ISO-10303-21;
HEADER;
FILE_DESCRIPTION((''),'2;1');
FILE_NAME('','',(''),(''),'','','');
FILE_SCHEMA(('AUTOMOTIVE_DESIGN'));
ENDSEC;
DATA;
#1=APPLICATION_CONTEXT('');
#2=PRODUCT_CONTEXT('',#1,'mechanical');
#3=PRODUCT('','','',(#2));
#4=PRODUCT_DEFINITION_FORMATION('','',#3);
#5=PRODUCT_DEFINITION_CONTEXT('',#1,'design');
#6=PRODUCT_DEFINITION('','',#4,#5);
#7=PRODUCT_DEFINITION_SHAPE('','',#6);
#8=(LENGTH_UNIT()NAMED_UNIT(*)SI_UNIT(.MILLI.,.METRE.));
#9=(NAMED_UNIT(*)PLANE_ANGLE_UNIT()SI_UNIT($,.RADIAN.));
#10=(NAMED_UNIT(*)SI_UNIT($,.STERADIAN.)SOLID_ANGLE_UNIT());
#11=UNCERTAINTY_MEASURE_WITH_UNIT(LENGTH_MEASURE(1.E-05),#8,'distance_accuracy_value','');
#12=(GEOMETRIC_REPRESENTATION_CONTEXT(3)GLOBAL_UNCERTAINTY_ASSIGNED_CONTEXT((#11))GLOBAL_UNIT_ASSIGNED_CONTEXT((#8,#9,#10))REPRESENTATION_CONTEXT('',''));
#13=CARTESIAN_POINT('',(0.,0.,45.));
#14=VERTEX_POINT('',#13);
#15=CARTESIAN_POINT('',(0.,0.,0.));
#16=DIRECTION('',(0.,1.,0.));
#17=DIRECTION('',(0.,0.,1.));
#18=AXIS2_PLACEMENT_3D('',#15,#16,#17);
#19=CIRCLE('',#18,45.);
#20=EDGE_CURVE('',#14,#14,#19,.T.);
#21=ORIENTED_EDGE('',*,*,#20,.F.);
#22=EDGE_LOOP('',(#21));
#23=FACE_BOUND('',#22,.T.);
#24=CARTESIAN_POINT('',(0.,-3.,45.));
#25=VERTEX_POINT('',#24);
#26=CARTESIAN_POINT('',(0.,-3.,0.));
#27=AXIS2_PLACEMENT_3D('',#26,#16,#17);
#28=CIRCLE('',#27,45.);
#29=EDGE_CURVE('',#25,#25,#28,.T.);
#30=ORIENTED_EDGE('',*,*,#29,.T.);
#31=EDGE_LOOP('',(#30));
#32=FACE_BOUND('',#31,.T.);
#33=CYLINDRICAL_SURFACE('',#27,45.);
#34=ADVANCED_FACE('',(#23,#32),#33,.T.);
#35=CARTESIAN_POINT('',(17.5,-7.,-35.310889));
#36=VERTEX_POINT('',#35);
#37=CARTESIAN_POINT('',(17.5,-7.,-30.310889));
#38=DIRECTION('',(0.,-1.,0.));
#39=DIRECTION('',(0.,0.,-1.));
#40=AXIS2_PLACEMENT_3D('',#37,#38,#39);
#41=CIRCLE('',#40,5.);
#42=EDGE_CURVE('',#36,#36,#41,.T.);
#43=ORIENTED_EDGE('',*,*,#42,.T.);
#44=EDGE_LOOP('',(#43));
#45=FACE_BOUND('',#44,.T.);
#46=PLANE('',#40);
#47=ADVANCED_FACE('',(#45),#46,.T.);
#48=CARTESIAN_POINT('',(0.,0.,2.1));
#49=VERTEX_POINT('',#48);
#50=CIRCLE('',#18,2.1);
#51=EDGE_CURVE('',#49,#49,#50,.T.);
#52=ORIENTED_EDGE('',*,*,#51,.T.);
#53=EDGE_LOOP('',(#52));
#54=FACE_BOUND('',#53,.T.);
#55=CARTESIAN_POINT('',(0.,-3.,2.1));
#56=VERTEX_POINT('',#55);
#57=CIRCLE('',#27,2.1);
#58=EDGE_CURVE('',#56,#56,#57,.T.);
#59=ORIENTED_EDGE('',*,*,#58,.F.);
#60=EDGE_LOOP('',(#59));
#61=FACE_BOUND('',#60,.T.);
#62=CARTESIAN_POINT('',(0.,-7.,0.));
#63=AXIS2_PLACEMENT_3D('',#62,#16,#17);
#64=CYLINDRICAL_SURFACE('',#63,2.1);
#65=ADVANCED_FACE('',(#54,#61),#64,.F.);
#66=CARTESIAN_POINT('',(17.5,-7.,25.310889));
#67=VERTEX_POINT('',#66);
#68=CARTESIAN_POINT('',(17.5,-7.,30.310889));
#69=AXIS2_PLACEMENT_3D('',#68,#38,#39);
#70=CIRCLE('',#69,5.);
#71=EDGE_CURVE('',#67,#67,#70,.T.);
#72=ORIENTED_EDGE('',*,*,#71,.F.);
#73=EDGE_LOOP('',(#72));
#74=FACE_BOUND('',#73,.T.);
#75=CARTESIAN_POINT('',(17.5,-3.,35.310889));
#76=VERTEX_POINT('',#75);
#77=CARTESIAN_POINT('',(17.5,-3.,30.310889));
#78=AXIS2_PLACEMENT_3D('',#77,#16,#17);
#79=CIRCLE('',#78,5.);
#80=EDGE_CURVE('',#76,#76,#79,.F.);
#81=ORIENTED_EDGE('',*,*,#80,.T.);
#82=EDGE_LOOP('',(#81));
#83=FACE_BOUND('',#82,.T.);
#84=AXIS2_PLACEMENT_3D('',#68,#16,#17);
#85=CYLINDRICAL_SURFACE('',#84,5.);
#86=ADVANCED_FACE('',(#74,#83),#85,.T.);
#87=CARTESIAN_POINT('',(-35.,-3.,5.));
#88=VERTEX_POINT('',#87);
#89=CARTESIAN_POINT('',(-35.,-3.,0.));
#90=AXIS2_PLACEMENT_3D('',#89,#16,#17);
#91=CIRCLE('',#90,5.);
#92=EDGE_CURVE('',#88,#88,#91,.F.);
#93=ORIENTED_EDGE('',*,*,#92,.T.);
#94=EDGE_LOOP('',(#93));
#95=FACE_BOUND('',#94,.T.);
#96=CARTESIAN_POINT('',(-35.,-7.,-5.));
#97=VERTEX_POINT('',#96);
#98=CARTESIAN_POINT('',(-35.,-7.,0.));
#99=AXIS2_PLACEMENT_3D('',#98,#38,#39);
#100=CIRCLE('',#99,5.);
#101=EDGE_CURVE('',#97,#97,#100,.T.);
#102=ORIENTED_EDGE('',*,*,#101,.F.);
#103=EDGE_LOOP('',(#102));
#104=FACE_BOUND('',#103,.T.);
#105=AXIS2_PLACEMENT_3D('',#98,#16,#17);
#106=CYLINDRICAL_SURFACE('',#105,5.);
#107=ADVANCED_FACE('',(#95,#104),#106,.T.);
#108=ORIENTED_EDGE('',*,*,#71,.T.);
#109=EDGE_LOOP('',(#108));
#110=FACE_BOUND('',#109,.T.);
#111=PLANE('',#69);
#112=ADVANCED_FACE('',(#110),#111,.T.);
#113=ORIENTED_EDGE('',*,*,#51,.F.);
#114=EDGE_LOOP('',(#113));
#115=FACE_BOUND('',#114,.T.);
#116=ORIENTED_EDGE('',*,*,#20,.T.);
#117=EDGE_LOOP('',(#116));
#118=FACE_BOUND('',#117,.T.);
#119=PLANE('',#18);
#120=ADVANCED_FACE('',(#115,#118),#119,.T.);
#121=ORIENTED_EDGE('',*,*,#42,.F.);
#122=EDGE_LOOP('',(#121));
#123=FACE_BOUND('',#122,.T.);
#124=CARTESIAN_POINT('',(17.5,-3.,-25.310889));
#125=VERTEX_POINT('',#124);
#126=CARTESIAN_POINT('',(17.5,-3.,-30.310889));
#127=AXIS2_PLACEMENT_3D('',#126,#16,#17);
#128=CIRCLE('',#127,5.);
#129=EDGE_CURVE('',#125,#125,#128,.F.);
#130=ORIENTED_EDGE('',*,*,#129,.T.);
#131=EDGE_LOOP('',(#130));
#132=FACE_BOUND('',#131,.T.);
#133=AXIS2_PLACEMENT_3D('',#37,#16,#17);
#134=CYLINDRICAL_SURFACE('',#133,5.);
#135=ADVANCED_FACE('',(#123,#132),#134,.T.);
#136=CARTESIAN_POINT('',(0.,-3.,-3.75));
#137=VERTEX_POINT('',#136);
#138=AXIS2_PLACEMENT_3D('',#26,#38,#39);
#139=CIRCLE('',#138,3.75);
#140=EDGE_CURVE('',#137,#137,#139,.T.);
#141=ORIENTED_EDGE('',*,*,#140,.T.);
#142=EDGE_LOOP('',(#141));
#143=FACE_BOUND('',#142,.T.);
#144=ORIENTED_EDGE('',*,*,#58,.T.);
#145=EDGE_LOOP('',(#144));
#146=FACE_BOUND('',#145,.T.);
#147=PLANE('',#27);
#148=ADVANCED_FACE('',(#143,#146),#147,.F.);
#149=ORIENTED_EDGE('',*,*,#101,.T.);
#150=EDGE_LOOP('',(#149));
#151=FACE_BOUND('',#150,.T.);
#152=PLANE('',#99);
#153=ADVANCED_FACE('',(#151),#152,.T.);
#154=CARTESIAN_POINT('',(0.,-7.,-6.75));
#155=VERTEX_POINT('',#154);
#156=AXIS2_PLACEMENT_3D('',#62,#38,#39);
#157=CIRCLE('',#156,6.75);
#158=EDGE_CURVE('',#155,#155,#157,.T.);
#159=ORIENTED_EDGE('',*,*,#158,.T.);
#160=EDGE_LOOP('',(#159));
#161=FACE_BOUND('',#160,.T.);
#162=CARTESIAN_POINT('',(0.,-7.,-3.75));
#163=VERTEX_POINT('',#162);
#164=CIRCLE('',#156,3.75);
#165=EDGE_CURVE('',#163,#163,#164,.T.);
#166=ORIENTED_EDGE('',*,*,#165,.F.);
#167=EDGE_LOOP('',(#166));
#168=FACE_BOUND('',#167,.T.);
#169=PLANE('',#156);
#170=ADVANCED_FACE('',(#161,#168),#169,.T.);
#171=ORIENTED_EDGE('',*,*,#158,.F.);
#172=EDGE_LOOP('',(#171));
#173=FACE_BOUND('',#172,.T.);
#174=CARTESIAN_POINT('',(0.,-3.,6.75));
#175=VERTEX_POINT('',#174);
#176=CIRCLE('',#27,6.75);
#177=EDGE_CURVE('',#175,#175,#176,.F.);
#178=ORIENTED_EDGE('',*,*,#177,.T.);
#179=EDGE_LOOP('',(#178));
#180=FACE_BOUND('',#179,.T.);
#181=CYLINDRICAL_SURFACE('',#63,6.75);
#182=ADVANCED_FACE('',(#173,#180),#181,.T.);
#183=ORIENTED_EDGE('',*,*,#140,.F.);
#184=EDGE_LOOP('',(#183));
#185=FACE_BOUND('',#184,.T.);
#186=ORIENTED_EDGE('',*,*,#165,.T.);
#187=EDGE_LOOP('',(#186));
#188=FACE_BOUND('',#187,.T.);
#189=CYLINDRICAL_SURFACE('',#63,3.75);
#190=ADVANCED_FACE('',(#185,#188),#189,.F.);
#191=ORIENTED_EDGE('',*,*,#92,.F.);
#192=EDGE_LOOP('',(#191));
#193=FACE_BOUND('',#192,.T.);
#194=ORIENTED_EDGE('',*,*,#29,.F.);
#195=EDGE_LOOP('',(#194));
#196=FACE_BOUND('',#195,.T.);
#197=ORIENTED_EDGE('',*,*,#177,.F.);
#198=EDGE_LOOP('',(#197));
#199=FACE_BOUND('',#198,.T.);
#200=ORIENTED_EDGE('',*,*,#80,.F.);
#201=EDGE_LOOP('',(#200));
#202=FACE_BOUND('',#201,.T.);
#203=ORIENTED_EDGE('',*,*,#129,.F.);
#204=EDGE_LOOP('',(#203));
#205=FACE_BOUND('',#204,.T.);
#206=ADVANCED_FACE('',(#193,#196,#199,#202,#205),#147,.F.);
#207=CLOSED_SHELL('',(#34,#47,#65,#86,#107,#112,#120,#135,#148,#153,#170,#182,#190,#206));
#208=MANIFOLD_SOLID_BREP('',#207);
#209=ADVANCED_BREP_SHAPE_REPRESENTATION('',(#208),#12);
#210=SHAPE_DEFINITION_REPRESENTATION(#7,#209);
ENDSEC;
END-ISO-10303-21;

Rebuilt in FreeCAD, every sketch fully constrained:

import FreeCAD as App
import Part
import Sketcher

doc = App.newDocument("Part")
body = doc.addObject("PartDesign::Body", "Body")

sketch1 = body.newObject("Sketcher::SketchObject", "Sketch")
sketch1.AttachmentSupport = (doc.getObject("XZ_Plane"), [""])
sketch1.MapMode = "FlatFace"
sketch1.addGeometry(Part.Circle(App.Vector(0, 0, 0), App.Vector(0, 0, 1), 45), False)
sketch1.addConstraint([
    Sketcher.Constraint("Coincident", 0, 3, -1, 1),
    Sketcher.Constraint("Diameter", 0, 90.0),
])
pad1 = body.newObject("PartDesign::Pad", "Pad")
pad1.Profile = sketch1
pad1.Length = 3

sketch2 = body.newObject("Sketcher::SketchObject", "Sketch001")
sketch2.AttachmentSupport = (doc.getObject("XZ_Plane"), [""])
sketch2.MapMode = "FlatFace"
sketch2.AttachmentOffset = App.Placement(App.Vector(0, 0, 3), App.Rotation())
sketch2.addGeometry([
    Part.Circle(App.Vector(0, 0, 0), App.Vector(0, 0, 1), 6.8),
    Part.Circle(App.Vector(0, 0, 0), App.Vector(0, 0, 1), 3.8),
    Part.Circle(App.Vector(-35, 0, 0), App.Vector(0, 0, 1), 5),
    Part.Circle(App.Vector(17.5, 30.3, 0), App.Vector(0, 0, 1), 5),
    Part.Circle(App.Vector(17.5, -30.3, 0), App.Vector(0, 0, 1), 5),
], False)
sketch2.addConstraint([
    Sketcher.Constraint("Coincident", 0, 3, -1, 1),
    Sketcher.Constraint("Coincident", 1, 3, -1, 1),
    Sketcher.Constraint("Equal", 2, 3),
    Sketcher.Constraint("Equal", 3, 4),
    Sketcher.Constraint("Symmetric", 3, 3, 4, 3, -1),
    Sketcher.Constraint("PointOnObject", 2, 3, -1),
    Sketcher.Constraint("Diameter", 2, 10.0),
    Sketcher.Constraint("Diameter", 0, 13.5),
    Sketcher.Constraint("Diameter", 1, 7.5),
    Sketcher.Constraint("DistanceX", 2, 3, -1, 1, 35.0),
    Sketcher.Constraint("DistanceX", -1, 1, 3, 3, 17.5),
    Sketcher.Constraint("DistanceY", -1, 1, 3, 3, 30.310889),
])
pad2 = body.newObject("PartDesign::Pad", "Pad001")
pad2.Profile = sketch2
pad2.Length = 4

sketch3 = body.newObject("Sketcher::SketchObject", "Sketch002")
sketch3.AttachmentSupport = (doc.getObject("XZ_Plane"), [""])
sketch3.MapMode = "FlatFace"
sketch3.addGeometry(Part.Circle(App.Vector(0, 0, 0), App.Vector(0, 0, 1), 2.1), False)
sketch3.addConstraint([
    Sketcher.Constraint("Coincident", 0, 3, -1, 1),
    Sketcher.Constraint("Diameter", 0, 4.2),
])
pocket1 = body.newObject("PartDesign::Pocket", "Pocket")
pocket1.Profile = sketch3
pocket1.Type = "ThroughAll"
pocket1.Reversed = True

doc.recompute()
